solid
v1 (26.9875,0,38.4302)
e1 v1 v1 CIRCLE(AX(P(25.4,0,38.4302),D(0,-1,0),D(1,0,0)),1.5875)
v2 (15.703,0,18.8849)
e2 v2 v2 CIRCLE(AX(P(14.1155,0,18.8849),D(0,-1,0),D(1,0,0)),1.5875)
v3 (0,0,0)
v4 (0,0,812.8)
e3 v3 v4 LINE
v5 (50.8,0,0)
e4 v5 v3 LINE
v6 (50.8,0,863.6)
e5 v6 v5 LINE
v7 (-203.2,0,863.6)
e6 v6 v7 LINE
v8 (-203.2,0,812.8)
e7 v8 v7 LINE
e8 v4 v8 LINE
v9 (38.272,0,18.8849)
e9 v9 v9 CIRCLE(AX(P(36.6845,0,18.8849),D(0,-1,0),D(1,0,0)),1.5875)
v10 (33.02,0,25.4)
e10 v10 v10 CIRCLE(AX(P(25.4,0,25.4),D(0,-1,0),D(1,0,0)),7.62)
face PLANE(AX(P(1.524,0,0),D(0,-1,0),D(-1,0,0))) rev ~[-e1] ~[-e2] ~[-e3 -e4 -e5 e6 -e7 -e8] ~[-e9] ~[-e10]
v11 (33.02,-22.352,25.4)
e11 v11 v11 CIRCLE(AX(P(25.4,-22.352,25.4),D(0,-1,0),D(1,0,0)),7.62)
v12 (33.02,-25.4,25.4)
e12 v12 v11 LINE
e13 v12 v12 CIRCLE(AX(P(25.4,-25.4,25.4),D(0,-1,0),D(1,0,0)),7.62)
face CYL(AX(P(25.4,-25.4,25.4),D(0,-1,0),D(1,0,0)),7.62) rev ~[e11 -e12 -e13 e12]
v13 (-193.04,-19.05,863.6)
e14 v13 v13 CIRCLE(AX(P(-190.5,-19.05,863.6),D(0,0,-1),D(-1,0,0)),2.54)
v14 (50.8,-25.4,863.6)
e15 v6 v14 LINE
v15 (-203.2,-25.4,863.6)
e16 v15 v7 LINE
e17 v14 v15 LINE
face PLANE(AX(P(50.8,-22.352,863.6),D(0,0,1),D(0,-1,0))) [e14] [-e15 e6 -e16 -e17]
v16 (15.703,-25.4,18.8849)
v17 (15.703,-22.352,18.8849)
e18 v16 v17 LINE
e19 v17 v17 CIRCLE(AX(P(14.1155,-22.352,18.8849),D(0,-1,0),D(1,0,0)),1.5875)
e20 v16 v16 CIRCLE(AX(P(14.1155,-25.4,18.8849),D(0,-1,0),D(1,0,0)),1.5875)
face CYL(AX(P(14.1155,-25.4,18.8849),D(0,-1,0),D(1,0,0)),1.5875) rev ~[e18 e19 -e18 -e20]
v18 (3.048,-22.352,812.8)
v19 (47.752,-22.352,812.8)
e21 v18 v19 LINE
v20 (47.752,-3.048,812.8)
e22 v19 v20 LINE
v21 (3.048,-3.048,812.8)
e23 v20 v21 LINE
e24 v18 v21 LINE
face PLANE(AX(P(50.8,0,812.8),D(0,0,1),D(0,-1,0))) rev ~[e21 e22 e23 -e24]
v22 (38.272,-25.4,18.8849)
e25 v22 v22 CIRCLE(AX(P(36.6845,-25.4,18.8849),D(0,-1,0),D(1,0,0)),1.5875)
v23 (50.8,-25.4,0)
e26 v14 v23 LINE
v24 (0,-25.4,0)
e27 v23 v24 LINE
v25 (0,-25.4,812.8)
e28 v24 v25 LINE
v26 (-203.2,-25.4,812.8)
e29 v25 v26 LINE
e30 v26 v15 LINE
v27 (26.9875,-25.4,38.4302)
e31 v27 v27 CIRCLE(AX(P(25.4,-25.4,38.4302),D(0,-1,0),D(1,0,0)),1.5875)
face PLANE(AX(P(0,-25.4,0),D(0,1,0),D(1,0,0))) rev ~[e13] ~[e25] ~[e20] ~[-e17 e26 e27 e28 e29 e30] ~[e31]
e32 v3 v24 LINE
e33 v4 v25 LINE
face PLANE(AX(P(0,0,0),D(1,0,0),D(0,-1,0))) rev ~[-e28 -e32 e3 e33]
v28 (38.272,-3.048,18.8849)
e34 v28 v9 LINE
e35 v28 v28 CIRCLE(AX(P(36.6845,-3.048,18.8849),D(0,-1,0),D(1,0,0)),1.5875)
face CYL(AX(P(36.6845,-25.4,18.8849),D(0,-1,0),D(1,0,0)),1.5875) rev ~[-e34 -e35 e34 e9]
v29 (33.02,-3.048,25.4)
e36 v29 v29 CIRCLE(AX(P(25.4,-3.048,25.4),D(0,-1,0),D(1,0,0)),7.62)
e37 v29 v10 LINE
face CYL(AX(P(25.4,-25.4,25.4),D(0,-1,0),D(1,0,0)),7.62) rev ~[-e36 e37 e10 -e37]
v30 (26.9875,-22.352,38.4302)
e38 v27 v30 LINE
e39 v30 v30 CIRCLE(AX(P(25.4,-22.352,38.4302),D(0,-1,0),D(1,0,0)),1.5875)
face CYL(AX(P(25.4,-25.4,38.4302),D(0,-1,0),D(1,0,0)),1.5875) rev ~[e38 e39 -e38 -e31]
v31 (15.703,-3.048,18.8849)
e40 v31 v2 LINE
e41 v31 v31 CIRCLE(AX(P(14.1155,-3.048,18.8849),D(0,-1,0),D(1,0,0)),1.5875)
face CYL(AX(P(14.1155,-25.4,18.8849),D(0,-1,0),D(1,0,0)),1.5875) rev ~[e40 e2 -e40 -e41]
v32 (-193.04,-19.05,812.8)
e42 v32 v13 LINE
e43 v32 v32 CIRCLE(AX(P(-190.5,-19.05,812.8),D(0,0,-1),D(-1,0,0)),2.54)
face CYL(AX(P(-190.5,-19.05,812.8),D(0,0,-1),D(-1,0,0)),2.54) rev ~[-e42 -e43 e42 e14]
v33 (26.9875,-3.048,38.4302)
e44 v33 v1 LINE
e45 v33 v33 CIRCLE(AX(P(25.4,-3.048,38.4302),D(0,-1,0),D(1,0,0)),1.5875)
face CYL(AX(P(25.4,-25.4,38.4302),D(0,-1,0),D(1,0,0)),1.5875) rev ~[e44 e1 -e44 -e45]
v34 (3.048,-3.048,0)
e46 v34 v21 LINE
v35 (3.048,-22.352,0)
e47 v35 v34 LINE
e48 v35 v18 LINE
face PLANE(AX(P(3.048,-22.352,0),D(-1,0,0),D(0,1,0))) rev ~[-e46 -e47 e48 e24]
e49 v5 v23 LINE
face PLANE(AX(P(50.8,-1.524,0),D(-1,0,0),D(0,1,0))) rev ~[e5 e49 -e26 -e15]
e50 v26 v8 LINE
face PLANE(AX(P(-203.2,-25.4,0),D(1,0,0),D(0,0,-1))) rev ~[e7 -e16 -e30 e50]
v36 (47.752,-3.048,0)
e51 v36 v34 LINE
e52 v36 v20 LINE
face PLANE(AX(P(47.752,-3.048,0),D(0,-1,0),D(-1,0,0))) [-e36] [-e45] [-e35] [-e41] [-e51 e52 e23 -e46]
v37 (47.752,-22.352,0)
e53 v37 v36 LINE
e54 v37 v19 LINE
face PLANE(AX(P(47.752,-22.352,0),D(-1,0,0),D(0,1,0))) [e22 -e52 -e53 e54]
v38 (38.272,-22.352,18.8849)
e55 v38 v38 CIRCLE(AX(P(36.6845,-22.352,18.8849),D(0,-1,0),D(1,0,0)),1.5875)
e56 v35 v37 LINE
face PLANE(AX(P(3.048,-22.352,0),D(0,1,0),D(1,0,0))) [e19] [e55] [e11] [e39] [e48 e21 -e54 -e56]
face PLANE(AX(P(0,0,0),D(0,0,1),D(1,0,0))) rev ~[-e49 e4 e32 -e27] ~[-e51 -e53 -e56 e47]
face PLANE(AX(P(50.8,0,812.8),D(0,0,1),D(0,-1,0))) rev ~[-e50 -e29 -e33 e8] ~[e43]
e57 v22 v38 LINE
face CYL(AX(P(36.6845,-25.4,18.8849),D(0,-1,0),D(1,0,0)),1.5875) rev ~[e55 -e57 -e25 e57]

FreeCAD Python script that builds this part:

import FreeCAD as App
import Part
import Sketcher
from FreeCAD import Vector
Q = App.Units.Quantity

doc = App.newDocument("Part")
body = doc.addObject("PartDesign::Body", "Body")

# Sketch on XY plane
sketch1 = body.newObject("Sketcher::SketchObject", "Sketch")
sketch1.AttachmentSupport = (doc.getObject("XY_Plane"), [""])
sketch1.MapMode = "FlatFace"
sketch1.addGeometry([
    Part.LineSegment(Vector(51, 0, 0), Vector(0, 0, 0)),  # 0
    Part.LineSegment(Vector(0, 0, 0), Vector(0, -25, 0)),  # 1
    Part.LineSegment(Vector(0, -25, 0), Vector(51, -25, 0)),  # 2
    Part.LineSegment(Vector(51, -25, 0), Vector(51, 0, 0)),  # 3
    Part.LineSegment(Vector(48, -22, 0), Vector(3, -22, 0)),  # 4
    Part.LineSegment(Vector(3, -22, 0), Vector(3, -3, 0)),  # 5
    Part.LineSegment(Vector(3, -3, 0), Vector(48, -3, 0)),  # 6
    Part.LineSegment(Vector(48, -3, 0), Vector(48, -22, 0)),  # 7
], False)
sketch1.addConstraint([
    Sketcher.Constraint("Coincident", 0, 2, 1, 1),
    Sketcher.Constraint("Coincident", 1, 2, 2, 1),
    Sketcher.Constraint("Coincident", 2, 2, 3, 1),
    Sketcher.Constraint("Coincident", 3, 2, 0, 1),
    Sketcher.Constraint("Coincident", 4, 2, 5, 1),
    Sketcher.Constraint("Coincident", 5, 2, 6, 1),
    Sketcher.Constraint("Coincident", 6, 2, 7, 1),
    Sketcher.Constraint("Coincident", 7, 2, 4, 1),
    Sketcher.Constraint("Horizontal", 0),
    Sketcher.Constraint("Vertical", 1),
    Sketcher.Constraint("Horizontal", 2),
    Sketcher.Constraint("Vertical", 3),
    Sketcher.Constraint("Horizontal", 4),
    Sketcher.Constraint("Vertical", 5),
    Sketcher.Constraint("Horizontal", 6),
    Sketcher.Constraint("Vertical", 7),
    Sketcher.Constraint("Coincident", 0, 2, -1, 1),
    Sketcher.Constraint("DistanceX", 0, 2, 0, 1, Q("2 in")),
    Sketcher.Constraint("DistanceY", 1, 2, 1, 1, Q("1 in")),
    Sketcher.Constraint("DistanceX", -1, 1, 4, 2, Q("0.12 in")),
    Sketcher.Constraint("DistanceY", 5, 2, -1, 1, Q("0.12 in")),
    Sketcher.Constraint("DistanceY", 1, 2, 4, 2, Q("0.12 in")),
    Sketcher.Constraint("DistanceX", 6, 2, 3, 2, Q("0.12 in")),
])
pad1 = body.newObject("PartDesign::Pad", "Pad")
pad1.Profile = sketch1
pad1.Length = Q("32 in")

# Sketch on YZ plane
sketch2 = body.newObject("Sketcher::SketchObject", "Sketch001")
sketch2.AttachmentSupport = (doc.getObject("YZ_Plane"), [""])
sketch2.MapMode = "FlatFace"
sketch2.AttachmentOffset = App.Placement(Vector(0, 0, 2 * 25.4), App.Rotation())
sketch2.addGeometry([
    Part.LineSegment(Vector(0, 813, 0), Vector(0, 864, 0)),
    Part.LineSegment(Vector(0, 864, 0), Vector(-25, 864, 0)),
    Part.LineSegment(Vector(-25, 864, 0), Vector(-25, 813, 0)),
    Part.LineSegment(Vector(-25, 813, 0), Vector(0, 813, 0)),
], False)
sketch2.addConstraint([
    Sketcher.Constraint("Coincident", 0, 2, 1, 1),
    Sketcher.Constraint("Coincident", 1, 2, 2, 1),
    Sketcher.Constraint("Coincident", 2, 2, 3, 1),
    Sketcher.Constraint("Coincident", 3, 2, 0, 1),
    Sketcher.Constraint("Vertical", 0),
    Sketcher.Constraint("Horizontal", 1),
    Sketcher.Constraint("Vertical", 2),
    Sketcher.Constraint("Horizontal", 3),
    Sketcher.Constraint("PointOnObject", 0, 2, -2),
    Sketcher.Constraint("DistanceX", 1, 2, 1, 1, Q("1 in")),
    Sketcher.Constraint("DistanceY", 0, 1, 0, 2, Q("2 in")),
    Sketcher.Constraint("DistanceY", -1, 1, 0, 2, Q("34 in")),
])
pad2 = body.newObject("PartDesign::Pad", "Pad001")
pad2.Profile = sketch2
pad2.Length = Q("10 in")
pad2.Reversed = True

# Sketch on XZ plane
sketch3 = body.newObject("Sketcher::SketchObject", "Sketch002")
sketch3.AttachmentSupport = (doc.getObject("XZ_Plane"), [""])
sketch3.MapMode = "FlatFace"
sketch3.AttachmentOffset = App.Placement(Vector(0, 0, 1 * 25.4), App.Rotation())
sketch3.addGeometry([
    Part.Circle(Vector(25.4, 25.4, 0), Vector(0, 0, 1), 7.6),
    Part.Circle(Vector(25.4, 38.4, 0), Vector(0, 0, 1), 1.6),
    Part.Circle(Vector(14.1, 18.9, 0), Vector(0, 0, 1), 1.6),
    Part.Circle(Vector(36.7, 18.9, 0), Vector(0, 0, 1), 1.6),
], False)
sketch3.addConstraint([
    Sketcher.Constraint("Equal", 1, 2),
    Sketcher.Constraint("Equal", 2, 3),
    Sketcher.Constraint("Horizontal", 2, 3, 3, 3),
    Sketcher.Constraint("Vertical", 0, 3, 1, 3),
    Sketcher.Constraint("Diameter", 0, Q("0.6 in")),
    Sketcher.Constraint("Diameter", 1, Q("0.125 in")),
    Sketcher.Constraint("DistanceX", -1, 1, 0, 3, Q("1 in")),
    Sketcher.Constraint("DistanceY", -1, 1, 0, 3, Q("1 in")),
    Sketcher.Constraint("DistanceY", -1, 1, 1, 3, Q("1.513 in")),
    Sketcher.Constraint("DistanceY", -1, 1, 2, 3, Q("0.7435 in")),
    Sketcher.Constraint("DistanceX", -1, 1, 2, 3, 14.1155),
    Sketcher.Constraint("DistanceX", -1, 1, 3, 3, 36.6845),
])
pocket1 = body.newObject("PartDesign::Pocket", "Pocket")
pocket1.Profile = sketch3
pocket1.Length = Q("10 in")

# Sketch on XY plane
sketch4 = body.newObject("Sketcher::SketchObject", "Sketch003")
sketch4.AttachmentSupport = (doc.getObject("XY_Plane"), [""])
sketch4.MapMode = "FlatFace"
sketch4.AttachmentOffset = App.Placement(Vector(0, 0, 32 * 25.4), App.Rotation())
sketch4.addGeometry(Part.Circle(Vector(-190.5, -19.1, 0), Vector(0, 0, 1), 2.5), False)
sketch4.addConstraint([
    Sketcher.Constraint("Diameter", 0, Q("0.2 in")),
    Sketcher.Constraint("DistanceY", 0, 3, -1, 1, Q("0.75 in")),
    Sketcher.Constraint("DistanceX", 0, 3, -1, 1, Q("7.5 in")),
])
pocket2 = body.newObject("PartDesign::Pocket", "Pocket001")
pocket2.Profile = sketch4
pocket2.Type = "ThroughAll"
pocket2.Reversed = True

doc.recompute()
